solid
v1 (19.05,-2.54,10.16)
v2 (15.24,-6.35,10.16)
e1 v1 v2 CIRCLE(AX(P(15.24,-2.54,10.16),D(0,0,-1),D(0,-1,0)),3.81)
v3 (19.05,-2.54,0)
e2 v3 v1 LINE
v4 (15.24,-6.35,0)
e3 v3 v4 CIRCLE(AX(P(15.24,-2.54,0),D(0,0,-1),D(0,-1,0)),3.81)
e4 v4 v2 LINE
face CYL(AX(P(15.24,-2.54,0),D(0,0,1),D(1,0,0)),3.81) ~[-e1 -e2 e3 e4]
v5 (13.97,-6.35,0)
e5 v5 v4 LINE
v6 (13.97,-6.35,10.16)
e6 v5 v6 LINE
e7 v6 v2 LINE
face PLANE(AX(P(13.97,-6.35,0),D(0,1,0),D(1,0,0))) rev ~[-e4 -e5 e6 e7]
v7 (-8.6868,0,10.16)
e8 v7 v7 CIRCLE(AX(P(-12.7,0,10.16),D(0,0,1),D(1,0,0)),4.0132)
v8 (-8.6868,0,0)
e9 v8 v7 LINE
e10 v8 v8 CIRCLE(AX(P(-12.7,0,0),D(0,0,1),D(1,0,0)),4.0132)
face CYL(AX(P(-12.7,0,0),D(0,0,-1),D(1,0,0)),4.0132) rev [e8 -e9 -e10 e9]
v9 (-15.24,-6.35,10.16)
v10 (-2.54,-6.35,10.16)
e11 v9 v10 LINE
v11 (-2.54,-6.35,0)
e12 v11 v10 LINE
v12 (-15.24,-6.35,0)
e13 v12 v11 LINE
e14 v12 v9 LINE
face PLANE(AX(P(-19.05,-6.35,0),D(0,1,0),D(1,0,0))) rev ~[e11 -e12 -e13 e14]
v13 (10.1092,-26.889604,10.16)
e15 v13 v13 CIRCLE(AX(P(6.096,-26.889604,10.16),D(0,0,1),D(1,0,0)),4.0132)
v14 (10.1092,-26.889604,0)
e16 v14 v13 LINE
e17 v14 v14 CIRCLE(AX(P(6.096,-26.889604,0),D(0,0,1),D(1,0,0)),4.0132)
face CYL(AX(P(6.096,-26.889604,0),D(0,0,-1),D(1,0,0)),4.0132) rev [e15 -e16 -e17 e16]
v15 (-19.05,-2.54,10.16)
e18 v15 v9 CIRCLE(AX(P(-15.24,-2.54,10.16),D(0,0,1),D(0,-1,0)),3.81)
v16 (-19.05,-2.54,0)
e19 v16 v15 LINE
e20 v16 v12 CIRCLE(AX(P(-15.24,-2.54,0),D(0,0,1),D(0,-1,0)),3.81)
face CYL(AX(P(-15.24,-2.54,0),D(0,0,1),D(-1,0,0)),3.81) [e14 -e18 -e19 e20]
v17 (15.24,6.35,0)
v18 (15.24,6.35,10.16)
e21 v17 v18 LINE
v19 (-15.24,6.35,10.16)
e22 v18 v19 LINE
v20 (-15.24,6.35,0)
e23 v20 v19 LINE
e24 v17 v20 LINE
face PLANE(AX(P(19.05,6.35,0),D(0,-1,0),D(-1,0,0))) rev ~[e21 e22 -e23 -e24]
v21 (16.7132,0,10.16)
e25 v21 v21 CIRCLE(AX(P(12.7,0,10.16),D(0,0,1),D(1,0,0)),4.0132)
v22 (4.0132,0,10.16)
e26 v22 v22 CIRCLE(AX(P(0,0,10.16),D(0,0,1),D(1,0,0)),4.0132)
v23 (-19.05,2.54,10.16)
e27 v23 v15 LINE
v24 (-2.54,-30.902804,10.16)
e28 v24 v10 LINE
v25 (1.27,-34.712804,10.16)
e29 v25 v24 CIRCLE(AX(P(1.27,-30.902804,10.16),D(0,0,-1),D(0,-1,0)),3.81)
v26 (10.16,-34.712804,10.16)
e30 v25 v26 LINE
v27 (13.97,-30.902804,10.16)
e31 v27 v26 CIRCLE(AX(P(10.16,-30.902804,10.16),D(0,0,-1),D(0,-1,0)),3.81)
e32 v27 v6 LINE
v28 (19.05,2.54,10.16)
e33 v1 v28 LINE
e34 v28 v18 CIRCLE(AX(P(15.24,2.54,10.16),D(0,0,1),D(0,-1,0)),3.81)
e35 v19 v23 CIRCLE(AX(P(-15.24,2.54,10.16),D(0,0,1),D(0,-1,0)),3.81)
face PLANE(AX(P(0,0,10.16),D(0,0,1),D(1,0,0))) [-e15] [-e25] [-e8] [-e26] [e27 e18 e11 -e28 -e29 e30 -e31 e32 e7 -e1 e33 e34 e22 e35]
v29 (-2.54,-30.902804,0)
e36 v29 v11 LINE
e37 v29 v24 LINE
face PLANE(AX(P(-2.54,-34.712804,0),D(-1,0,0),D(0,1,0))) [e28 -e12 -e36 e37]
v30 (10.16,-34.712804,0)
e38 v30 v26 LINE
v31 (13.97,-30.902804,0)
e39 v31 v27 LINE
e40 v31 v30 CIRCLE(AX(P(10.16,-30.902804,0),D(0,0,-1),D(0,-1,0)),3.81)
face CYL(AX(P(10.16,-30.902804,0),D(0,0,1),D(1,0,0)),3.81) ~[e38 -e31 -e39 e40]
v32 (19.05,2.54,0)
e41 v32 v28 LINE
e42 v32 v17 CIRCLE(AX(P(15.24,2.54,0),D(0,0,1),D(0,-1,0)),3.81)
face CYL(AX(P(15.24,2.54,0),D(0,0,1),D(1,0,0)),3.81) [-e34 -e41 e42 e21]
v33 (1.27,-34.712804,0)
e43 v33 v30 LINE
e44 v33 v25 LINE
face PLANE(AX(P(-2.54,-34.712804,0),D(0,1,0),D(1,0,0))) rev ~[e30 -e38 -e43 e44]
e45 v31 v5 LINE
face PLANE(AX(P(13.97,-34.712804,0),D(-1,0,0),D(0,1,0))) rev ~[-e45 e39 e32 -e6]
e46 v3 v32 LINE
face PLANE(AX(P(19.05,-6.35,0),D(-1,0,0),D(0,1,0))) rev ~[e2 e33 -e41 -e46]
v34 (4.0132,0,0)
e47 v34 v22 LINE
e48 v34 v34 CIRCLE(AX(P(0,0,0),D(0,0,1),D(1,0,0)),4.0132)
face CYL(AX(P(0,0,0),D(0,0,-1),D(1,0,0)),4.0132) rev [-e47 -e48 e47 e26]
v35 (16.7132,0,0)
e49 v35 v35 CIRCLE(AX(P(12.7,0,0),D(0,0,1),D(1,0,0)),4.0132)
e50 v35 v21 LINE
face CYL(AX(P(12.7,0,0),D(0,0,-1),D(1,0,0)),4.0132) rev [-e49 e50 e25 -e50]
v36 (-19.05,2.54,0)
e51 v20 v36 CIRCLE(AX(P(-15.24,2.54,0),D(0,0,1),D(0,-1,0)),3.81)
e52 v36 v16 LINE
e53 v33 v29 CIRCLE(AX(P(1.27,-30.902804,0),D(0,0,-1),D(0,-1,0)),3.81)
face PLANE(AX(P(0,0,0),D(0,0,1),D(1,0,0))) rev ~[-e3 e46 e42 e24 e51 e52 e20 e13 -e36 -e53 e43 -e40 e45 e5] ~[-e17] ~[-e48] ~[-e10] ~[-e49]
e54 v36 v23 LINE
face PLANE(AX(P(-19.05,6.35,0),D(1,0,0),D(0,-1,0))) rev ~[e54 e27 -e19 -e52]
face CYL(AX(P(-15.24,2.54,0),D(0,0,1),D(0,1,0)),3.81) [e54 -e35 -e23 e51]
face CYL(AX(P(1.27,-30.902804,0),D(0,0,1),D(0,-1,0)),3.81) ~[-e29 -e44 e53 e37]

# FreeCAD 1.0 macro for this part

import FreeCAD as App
import Part
import Sketcher
from FreeCAD import Vector
Q = App.Units.Quantity


def edges_at(feature, points):
    """Names of the edges that pass closest to the given points."""
    edges = feature.Shape.Edges
    near = lambda p: min(range(len(edges)), key=lambda i: edges[i].distToShape(Part.Vertex(*p))[0])
    return sorted({f"Edge{near(p) + 1}" for p in points})


def add_polygon(sketch, points):
    """Adds a closed chain of lines whose ends are joined by coincident constraints."""
    first, n = sketch.GeometryCount, len(points)
    for a, b in zip(points, points[1:] + points[:1]):
        sketch.addGeometry(Part.LineSegment(App.Vector(*a, 0), App.Vector(*b, 0)), False)
    for i in range(n):
        sketch.addConstraint(Sketcher.Constraint("Coincident", first + i, 2, first + (i + 1) % n, 1))

doc = App.newDocument("Part")
body = doc.addObject("PartDesign::Body", "Body")

# Sketch on XY plane
sketch1 = body.newObject("Sketcher::SketchObject", "Sketch")
sketch1.AttachmentSupport = (doc.getObject("XY_Plane"), [""])
sketch1.MapMode = "FlatFace"
add_polygon(sketch1, [(19.1, -6.3), (19.1, 6.3), (-19.1, 6.3), (-19.1, -6.3), (-2.5, -6.3), (-2.5, -34.7), (14, -34.7), (14, -6.3)])  # lines 0-7
sketch1.addGeometry(Part.Circle(Vector(6.1, -26.9, 0), Vector(0, 0, 1), 4), False)  # 8
sketch1.addGeometry(Part.Circle(Vector(-12.7, 0, 0), Vector(0, 0, 1), 4), False)  # 9
sketch1.addGeometry(Part.Circle(Vector(0, 0, 0), Vector(0, 0, 1), 4), False)  # 10
sketch1.addGeometry(Part.Circle(Vector(12.7, 0, 0), Vector(0, 0, 1), 4), False)  # 11
sketch1.addConstraint([
    Sketcher.Constraint("Vertical", 0),
    Sketcher.Constraint("Horizontal", 1),
    Sketcher.Constraint("Vertical", 2),
    Sketcher.Constraint("Horizontal", 3),
    Sketcher.Constraint("Vertical", 4),
    Sketcher.Constraint("Horizontal", 5),
    Sketcher.Constraint("Vertical", 6),
    Sketcher.Constraint("Horizontal", 7),
    Sketcher.Constraint("Coincident", 10, 3, -1, 1),
    Sketcher.Constraint("Equal", 8, 9),
    Sketcher.Constraint("Equal", 9, 10),
    Sketcher.Constraint("Equal", 10, 11),
    Sketcher.Constraint("Symmetric", 9, 3, 11, 3, -1, 1),
    Sketcher.Constraint("Symmetric", 0, 2, 2, 2, -1, 1),
    Sketcher.Constraint("PointOnObject", 9, 3, -1),
    Sketcher.Constraint("Horizontal", 3, 2, 6, 2),
    Sketcher.Constraint("Equal", 3, 5),
    Sketcher.Constraint("Diameter", 8, Q("0.316 in")),
    Sketcher.Constraint("DistanceX", 1, 2, 1, 1, Q("1.5 in")),
    Sketcher.Constraint("DistanceX", 7, 1, 7, 2, Q("0.2 in")),
    Sketcher.Constraint("DistanceY", 0, 1, 0, 2, Q("0.5 in")),
    Sketcher.Constraint("DistanceX", 9, 3, 11, 3, Q("1 in")),
    Sketcher.Constraint("DistanceX", -1, 1, 8, 3, Q("0.24 in")),
    Sketcher.Constraint("DistanceY", 4, 2, 8, 3, Q("0.308 in")),
    Sketcher.Constraint("DistanceY", 4, 2, 4, 1, Q("28.362804 mm")),
])
pad1 = body.newObject("PartDesign::Pad", "Pad")
pad1.Profile = sketch1
pad1.Length = Q("0.4 in")
doc.recompute()

fillet = body.newObject("PartDesign::Fillet", "Fillet")
fillet.Base = (pad1, edges_at(pad1, [
    (-2.54, -34.713, 5.08),
    (13.97, -34.713, 5.08),
    (19.05, -6.35, 5.08),
    (19.05, 6.35, 5.08),
    (-19.05, -6.35, 5.08),
    (-19.05, 6.35, 5.08),
]))
fillet.Radius = Q("0.15 in")

doc.recompute()
